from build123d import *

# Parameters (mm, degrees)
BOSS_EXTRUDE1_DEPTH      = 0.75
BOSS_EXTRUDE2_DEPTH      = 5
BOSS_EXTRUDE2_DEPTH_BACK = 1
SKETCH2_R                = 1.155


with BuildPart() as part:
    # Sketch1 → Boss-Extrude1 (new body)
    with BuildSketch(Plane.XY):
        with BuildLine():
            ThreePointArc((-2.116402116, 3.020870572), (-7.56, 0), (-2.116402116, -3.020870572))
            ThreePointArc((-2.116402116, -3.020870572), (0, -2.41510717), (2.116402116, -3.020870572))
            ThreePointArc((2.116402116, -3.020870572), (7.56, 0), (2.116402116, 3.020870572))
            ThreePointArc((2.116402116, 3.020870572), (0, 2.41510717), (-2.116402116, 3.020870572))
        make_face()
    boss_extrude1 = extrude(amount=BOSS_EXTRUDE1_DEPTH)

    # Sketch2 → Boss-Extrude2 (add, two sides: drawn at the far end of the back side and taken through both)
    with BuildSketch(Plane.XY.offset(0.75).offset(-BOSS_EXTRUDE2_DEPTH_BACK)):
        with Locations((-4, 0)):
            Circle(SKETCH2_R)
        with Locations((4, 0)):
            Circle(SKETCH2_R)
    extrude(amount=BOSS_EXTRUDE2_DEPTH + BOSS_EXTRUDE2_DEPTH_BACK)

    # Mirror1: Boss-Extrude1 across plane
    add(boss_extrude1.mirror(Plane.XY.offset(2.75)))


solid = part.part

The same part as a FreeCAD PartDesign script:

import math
import FreeCAD as App
import Part
import Sketcher

V = App.Vector
Q = App.Units.Quantity

doc = App.newDocument("Part")
body = doc.addObject("PartDesign::Body", "Body")

# Sketch on XY plane
sketch1 = body.newObject("Sketcher::SketchObject", "Sketch")
sketch1.AttachmentSupport = (doc.getObject("XY_Plane"), [""])
sketch1.MapMode = "FlatFace"
sketch1.addGeometry([
    Part.ArcOfCircle(Part.Circle(V(-4, 0, 0), V(0, 0, 1), 3.56), math.radians(58.055299), math.radians(301.944701)),
    Part.ArcOfCircle(Part.Circle(V(0, -6.415107, 0), V(0, 0, 1), 4), math.radians(58.055299), math.radians(121.944701)),
    Part.ArcOfCircle(Part.Circle(V(4, 0, 0), V(0, 0, 1), 3.56), math.radians(-121.944701), math.radians(121.944701)),
    Part.ArcOfCircle(Part.Circle(V(0, 6.415107, 0), V(0, 0, 1), 4), math.radians(-121.944701), math.radians(-58.055299)),
], False)
sketch1.addConstraint([
    Sketcher.Constraint("Tangent", 0, 2, 1, 2),
    Sketcher.Constraint("Tangent", 1, 1, 2, 1),
    Sketcher.Constraint("Tangent", 2, 2, 3, 2),
    Sketcher.Constraint("Tangent", 3, 1, 0, 1),
    Sketcher.Constraint("Equal", 0, 2),
    Sketcher.Constraint("Equal", 1, 3),
    Sketcher.Constraint("Symmetric", 0, 3, 2, 3, -1, 1),
    Sketcher.Constraint("PointOnObject", 0, 3, -1),
    Sketcher.Constraint("Radius", 1, Q("4 mm")),
    Sketcher.Constraint("Radius", 0, Q("3.56 mm")),
    Sketcher.Constraint("DistanceX", 0, 3, -1, 1, Q("4 mm")),
])
pad1 = body.newObject("PartDesign::Pad", "Pad")
pad1.Profile = sketch1
pad1.Length = 0.75

# Sketch on XY plane
sketch2 = body.newObject("Sketcher::SketchObject", "Sketch001")
sketch2.AttachmentSupport = (doc.getObject("XY_Plane"), [""])
sketch2.MapMode = "FlatFace"
sketch2.AttachmentOffset = App.Placement(V(0, 0, 0.75), App.Rotation())
sketch2.addGeometry([
    Part.Circle(V(-4, 0, 0), V(0, 0, 1), 1.155),
    Part.Circle(V(4, 0, 0), V(0, 0, 1), 1.155),
], False)
sketch2.addConstraint([
    Sketcher.Constraint("Equal", 0, 1),
    Sketcher.Constraint("Symmetric", 0, 3, 1, 3, -1, 1),
    Sketcher.Constraint("PointOnObject", 0, 3, -1),
    Sketcher.Constraint("Diameter", 0, Q("2.31 mm")),
    Sketcher.Constraint("DistanceX", 0, 3, -1, 1, Q("4 mm")),
])
pad2 = body.newObject("PartDesign::Pad", "Pad001")
pad2.Profile = sketch2
pad2.Type = "TwoLengths"
pad2.Length = 5
pad2.Length2 = 1
doc.recompute()

datumplane = body.newObject("PartDesign::Plane", "DatumPlane")
datumplane.AttachmentSupport = (doc.getObject("XY_Plane"), [""])
datumplane.MapMode = "FlatFace"
datumplane.AttachmentOffset = App.Placement(V(0, 0, 2.75), App.Rotation())
mirrored = body.newObject("PartDesign::Mirrored", "Mirrored")
mirrored.Originals = [pad1]
mirrored.MirrorPlane = (datumplane, [""])
body.Tip = mirrored

doc.recompute()
